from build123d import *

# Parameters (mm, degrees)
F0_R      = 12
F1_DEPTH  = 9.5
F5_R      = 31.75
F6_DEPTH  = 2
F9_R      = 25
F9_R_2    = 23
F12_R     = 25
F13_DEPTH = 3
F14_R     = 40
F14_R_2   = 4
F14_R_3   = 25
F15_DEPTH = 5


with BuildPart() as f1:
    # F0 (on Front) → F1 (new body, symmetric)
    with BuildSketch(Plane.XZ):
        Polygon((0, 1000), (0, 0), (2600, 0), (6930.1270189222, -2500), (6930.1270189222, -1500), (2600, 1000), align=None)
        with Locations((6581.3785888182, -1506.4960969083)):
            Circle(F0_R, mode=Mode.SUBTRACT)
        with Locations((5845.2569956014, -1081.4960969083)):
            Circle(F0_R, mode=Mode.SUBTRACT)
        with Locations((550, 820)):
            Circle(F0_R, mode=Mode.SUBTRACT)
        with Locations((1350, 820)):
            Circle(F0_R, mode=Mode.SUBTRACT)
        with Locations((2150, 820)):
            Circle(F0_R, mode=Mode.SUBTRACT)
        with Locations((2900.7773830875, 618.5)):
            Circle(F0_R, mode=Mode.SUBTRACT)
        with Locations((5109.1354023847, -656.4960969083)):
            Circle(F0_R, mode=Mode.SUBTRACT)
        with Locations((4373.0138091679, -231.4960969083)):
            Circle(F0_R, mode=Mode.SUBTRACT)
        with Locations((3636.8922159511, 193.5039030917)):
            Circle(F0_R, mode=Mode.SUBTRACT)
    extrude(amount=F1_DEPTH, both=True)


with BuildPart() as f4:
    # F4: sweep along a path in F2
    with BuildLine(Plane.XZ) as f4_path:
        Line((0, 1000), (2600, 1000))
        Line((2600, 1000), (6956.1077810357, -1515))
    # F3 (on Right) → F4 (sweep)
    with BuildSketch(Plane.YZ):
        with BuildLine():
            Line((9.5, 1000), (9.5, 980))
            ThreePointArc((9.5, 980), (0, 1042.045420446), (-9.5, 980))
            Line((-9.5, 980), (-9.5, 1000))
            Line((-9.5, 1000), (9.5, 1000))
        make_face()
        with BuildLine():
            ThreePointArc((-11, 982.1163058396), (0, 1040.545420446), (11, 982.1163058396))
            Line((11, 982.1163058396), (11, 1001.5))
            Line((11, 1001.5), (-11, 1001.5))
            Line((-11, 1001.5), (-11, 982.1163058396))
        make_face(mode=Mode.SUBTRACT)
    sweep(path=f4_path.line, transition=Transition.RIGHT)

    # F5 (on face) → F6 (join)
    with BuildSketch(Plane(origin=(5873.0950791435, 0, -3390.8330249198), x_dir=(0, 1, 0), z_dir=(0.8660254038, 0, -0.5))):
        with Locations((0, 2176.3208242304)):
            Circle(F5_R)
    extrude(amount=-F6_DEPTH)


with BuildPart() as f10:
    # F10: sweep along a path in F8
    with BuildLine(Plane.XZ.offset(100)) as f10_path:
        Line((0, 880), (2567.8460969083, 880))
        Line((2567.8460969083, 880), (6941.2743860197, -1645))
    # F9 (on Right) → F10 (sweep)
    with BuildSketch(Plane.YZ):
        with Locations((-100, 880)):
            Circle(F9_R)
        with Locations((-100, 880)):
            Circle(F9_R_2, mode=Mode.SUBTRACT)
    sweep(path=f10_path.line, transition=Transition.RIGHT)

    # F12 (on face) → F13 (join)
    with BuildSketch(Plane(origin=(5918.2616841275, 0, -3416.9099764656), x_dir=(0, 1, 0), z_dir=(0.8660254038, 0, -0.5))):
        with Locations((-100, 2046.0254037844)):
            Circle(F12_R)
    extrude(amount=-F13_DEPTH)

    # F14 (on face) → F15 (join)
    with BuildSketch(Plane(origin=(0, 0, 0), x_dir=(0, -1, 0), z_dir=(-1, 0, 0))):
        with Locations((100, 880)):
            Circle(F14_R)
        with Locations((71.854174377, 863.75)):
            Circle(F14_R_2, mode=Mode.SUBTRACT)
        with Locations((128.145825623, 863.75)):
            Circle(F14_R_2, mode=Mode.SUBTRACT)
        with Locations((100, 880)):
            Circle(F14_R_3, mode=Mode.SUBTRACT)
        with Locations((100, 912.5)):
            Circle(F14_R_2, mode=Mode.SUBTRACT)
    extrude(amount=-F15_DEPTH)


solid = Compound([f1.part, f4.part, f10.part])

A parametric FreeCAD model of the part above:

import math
import FreeCAD as App
import Part
import Sketcher
Q = App.Units.Quantity


def add_polygon(sketch, points):
    """Adds a closed chain of lines whose ends are joined by coincident constraints."""
    first, n = sketch.GeometryCount, len(points)
    for a, b in zip(points, points[1:] + points[:1]):
        sketch.addGeometry(Part.LineSegment(App.Vector(*a, 0), App.Vector(*b, 0)), False)
    for i in range(n):
        sketch.addConstraint(Sketcher.Constraint("Coincident", first + i, 2, first + (i + 1) % n, 1))

doc = App.newDocument("Part")
params = doc.addObject("Spreadsheet::Sheet", "Params")
for row, (alias, value) in enumerate([
    ("sketch1_diameter", "24 mm"),
    ("sketch1_width", "2600 mm"),
    ("sketch1_height", "1000 mm"),
    ("sketch1_length", "5000 mm"),
    ("pad1_length", "19 mm"),
    ("sketch2_width", "19 mm"),
    ("sketch2_width2", "22 mm"),
    ("sketch2_height", "20 mm"),
    ("sketch2_radius", "31.75 mm"),
    ("sketch2_radius2", "30.25 mm"),
    ("sketch3_width", "2600 mm"),
    ("sketch3_length", "5030 mm"),
    ("sketch4_diameter", "63.5 mm"),
    ("pad2_length", "2 mm"),
    ("sketch5_diameter", "50 mm"),
    ("sketch5_diameter2", "46 mm"),
    ("sketch6_length", "5050 mm"),
    ("sketch7_diameter", "50 mm"),
    ("pad3_length", "3 mm"),
    ("sketch8_diameter", "80 mm"),
    ("sketch8_diameter2", "8 mm"),
    ("sketch8_diameter3", "50 mm"),
    ("pad4_length", "5 mm"),
], start=1):
    params.set(f"A{row}", alias)
    params.set(f"B{row}", "=" + value)
    params.setAlias(f"B{row}", alias)

body = doc.addObject("PartDesign::Body", "Body")

# Sketch on XZ plane
sketch1 = body.newObject("Sketcher::SketchObject", "Sketch")
sketch1.AttachmentSupport = (doc.getObject("XZ_Plane"), [""])
sketch1.MapMode = "FlatFace"
add_polygon(sketch1, [(0, 1000), (0, 0), (2600, 0), (6930, -2500), (6930, -1500), (2600, 1000)])  # lines 0-5
sketch1.addGeometry(Part.Circle(App.Vector(6581, -1506, 0), App.Vector(0, 0, 1), 12), False)  # 6
sketch1.addGeometry(Part.Circle(App.Vector(5845, -1081, 0), App.Vector(0, 0, 1), 12), False)  # 7
sketch1.addGeometry(Part.Circle(App.Vector(5109, -656, 0), App.Vector(0, 0, 1), 12), False)  # 8
sketch1.addGeometry(Part.Circle(App.Vector(550, 820, 0), App.Vector(0, 0, 1), 12), False)  # 9
sketch1.addGeometry(Part.Circle(App.Vector(1350, 820, 0), App.Vector(0, 0, 1), 12), False)  # 10
sketch1.addGeometry(Part.Circle(App.Vector(2150, 820, 0), App.Vector(0, 0, 1), 12), False)  # 11
sketch1.addGeometry(Part.Circle(App.Vector(2901, 618, 0), App.Vector(0, 0, 1), 12), False)  # 12
sketch1.addGeometry(Part.Circle(App.Vector(4373, -231, 0), App.Vector(0, 0, 1), 12), False)  # 13
sketch1.addGeometry(Part.Circle(App.Vector(3637, 194, 0), App.Vector(0, 0, 1), 12), False)  # 14
sketch1.addConstraint(Sketcher.Constraint("Vertical", 0))
sketch1.addConstraint(Sketcher.Constraint("Horizontal", 1))
sketch1.addConstraint(Sketcher.Constraint("Vertical", 3))
sketch1.addConstraint(Sketcher.Constraint("Horizontal", 5))
sketch1.addConstraint(Sketcher.Constraint("Coincident", 0, 2, -1, 1))
sketch1.addConstraint(Sketcher.Constraint("Equal", 6, 7))
sketch1.addConstraint(Sketcher.Constraint("Equal", 7, 8))
sketch1.addConstraint(Sketcher.Constraint("Equal", 8, 9))
sketch1.addConstraint(Sketcher.Constraint("Equal", 9, 10))
sketch1.addConstraint(Sketcher.Constraint("Equal", 10, 11))
sketch1.addConstraint(Sketcher.Constraint("Equal", 11, 12))
sketch1.addConstraint(Sketcher.Constraint("Equal", 12, 13))
sketch1.addConstraint(Sketcher.Constraint("Equal", 13, 14))
sketch1.addConstraint(Sketcher.Constraint("Parallel", 2, 4))
sketch1.addConstraint(Sketcher.Constraint("Horizontal", 9, 3, 10, 3))
sketch1.addConstraint(Sketcher.Constraint("Horizontal", 10, 3, 11, 3))
sketch1.addConstraint(Sketcher.Constraint("Vertical", 1, 2, 4, 2))
sketch1.addConstraint(Sketcher.Constraint("Diameter", 6, Q("24 mm")))
sketch1.addConstraint(Sketcher.Constraint("DistanceX", 1, 1, 1, 2, Q("2600 mm")))
sketch1.addConstraint(Sketcher.Constraint("DistanceY", 0, 2, 0, 1, Q("1000 mm")))
sketch1.addConstraint(Sketcher.Constraint("Angle", 2, Q("-30 deg")))
sketch1.addConstraint(Sketcher.Constraint("Distance", 2, Q("5000 mm")))
sketch1.addConstraint(Sketcher.Constraint("DistanceX", -1, 1, 9, 3, Q("550 mm")))
sketch1.addConstraint(Sketcher.Constraint("DistanceY", -1, 1, 9, 3, Q("820 mm")))
sketch1.addConstraint(Sketcher.Constraint("DistanceX", -1, 1, 10, 3, Q("1350 mm")))
sketch1.addConstraint(Sketcher.Constraint("DistanceX", -1, 1, 11, 3, Q("2150 mm")))
sketch1.addConstraint(Sketcher.Constraint("DistanceY", 6, 3, 7, 3, Q("425 mm")))
sketch1.addConstraint(Sketcher.Constraint("DistanceY", 7, 3, 8, 3, Q("425 mm")))
sketch1.addConstraint(Sketcher.Constraint("DistanceY", 8, 3, 13, 3, Q("425 mm")))
sketch1.addConstraint(Sketcher.Constraint("DistanceY", 13, 3, 14, 3, Q("425 mm")))
sketch1.addConstraint(Sketcher.Constraint("DistanceY", -1, 1, 12, 3, Q("618.5 mm")))
sketch1.addConstraint(Sketcher.Constraint("DistanceX", -1, 1, 6, 3, Q("6581.378589 mm")))
sketch1.addConstraint(Sketcher.Constraint("DistanceX", -1, 1, 13, 3, Q("4373.013809 mm")))
sketch1.addConstraint(Sketcher.Constraint("DistanceX", 12, 3, 8, 3, Q("2208.358019 mm")))
sketch1.addConstraint(Sketcher.Constraint("DistanceY", 6, 3, -1, 1, Q("1506.496097 mm")))
sketch1.addConstraint(Sketcher.Constraint("DistanceX", -1, 1, 7, 3, Q("5845.256996 mm")))
sketch1.addConstraint(Sketcher.Constraint("DistanceX", -1, 1, 8, 3, Q("5109.135402 mm")))
sketch1.addConstraint(Sketcher.Constraint("DistanceX", -1, 1, 14, 3, Q("3636.892216 mm")))
sketch1.setExpression("Constraints[23]", "Params.sketch1_diameter")
sketch1.setExpression("Constraints[24]", "Params.sketch1_width")
sketch1.setExpression("Constraints[25]", "Params.sketch1_height")
sketch1.setExpression("Constraints[27]", "Params.sketch1_length")
pad1 = body.newObject("PartDesign::Pad", "Pad")
pad1.Profile = sketch1
pad1.setExpression("Length", "Params.pad1_length")
pad1.Midplane = True
body2 = doc.addObject("PartDesign::Body", "Body001")

# Sketch on YZ plane
sketch2 = body2.newObject("Sketcher::SketchObject", "Sketch001")
sketch2.AttachmentSupport = (doc.getObject("YZ_Plane001"), [""])
sketch2.MapMode = "FlatFace"
sketch2.addGeometry(Part.LineSegment(App.Vector(10, 1000, 0), App.Vector(10, 980, 0)), False)
sketch2.addGeometry(Part.ArcOfCircle(Part.Circle(App.Vector(0, 1010, 0), App.Vector(0, 0, 1), 32), math.radians(-73), math.radians(253)), False)
sketch2.addGeometry(Part.LineSegment(App.Vector(-10, 980, 0), App.Vector(-10, 1000, 0)), False)
sketch2.addGeometry(Part.LineSegment(App.Vector(-10, 1000, 0), App.Vector(10, 1000, 0)), False)
sketch2.addGeometry(Part.LineSegment(App.Vector(-11, 1002, 0), App.Vector(-11, 982, 0)), False)
sketch2.addGeometry(Part.ArcOfCircle(Part.Circle(App.Vector(0, 1010, 0), App.Vector(0, 0, 1), 30), math.radians(-69), math.radians(249)), False)
sketch2.addGeometry(Part.LineSegment(App.Vector(11, 982, 0), App.Vector(11, 1002, 0)), False)
sketch2.addGeometry(Part.LineSegment(App.Vector(11, 1002, 0), App.Vector(-11, 1002, 0)), False)
sketch2.addConstraint(Sketcher.Constraint("Coincident", 0, 2, 1, 1))
sketch2.addConstraint(Sketcher.Constraint("Coincident", 1, 2, 2, 1))
sketch2.addConstraint(Sketcher.Constraint("Coincident", 2, 2, 3, 1))
sketch2.addConstraint(Sketcher.Constraint("Coincident", 3, 2, 0, 1))
sketch2.addConstraint(Sketcher.Constraint("Coincident", 4, 2, 5, 2))
sketch2.addConstraint(Sketcher.Constraint("Coincident", 5, 1, 6, 1))
sketch2.addConstraint(Sketcher.Constraint("Coincident", 6, 2, 7, 1))
sketch2.addConstraint(Sketcher.Constraint("Coincident", 7, 2, 4, 1))
sketch2.addConstraint(Sketcher.Constraint("Vertical", 0))
sketch2.addConstraint(Sketcher.Constraint("Vertical", 2))
sketch2.addConstraint(Sketcher.Constraint("Horizontal", 3))
sketch2.addConstraint(Sketcher.Constraint("Vertical", 4))
sketch2.addConstraint(Sketcher.Constraint("Vertical", 6))
sketch2.addConstraint(Sketcher.Constraint("Horizontal", 7))
sketch2.addConstraint(Sketcher.Constraint("Coincident", 5, 3, 1, 3))
sketch2.addConstraint(Sketcher.Constraint("Symmetric", 0, 2, 1, 2, -2))
sketch2.addConstraint(Sketcher.Constraint("Horizontal", 4, 2, 5, 1))
sketch2.addConstraint(Sketcher.Constraint("DistanceX", 3, 1, 3, 2, Q("19 mm")))
sketch2.addConstraint(Sketcher.Constraint("DistanceX", 7, 2, 7, 1, Q("22 mm")))
sketch2.addConstraint(Sketcher.Constraint("DistanceY", 0, 2, 0, 1, Q("20 mm")))
sketch2.addConstraint(Sketcher.Constraint("Radius", 1, Q("31.75 mm")))
sketch2.addConstraint(Sketcher.Constraint("Radius", 5, Q("30.25 mm")))
sketch2.addConstraint(Sketcher.Constraint("DistanceY", -1, 1, 0, 2, Q("980 mm")))
sketch2.addConstraint(Sketcher.Constraint("DistanceY", -1, 1, 6, 2, Q("1001.5 mm")))
sketch2.setExpression("Constraints[17]", "Params.sketch2_width")
sketch2.setExpression("Constraints[18]", "Params.sketch2_width2")
sketch2.setExpression("Constraints[19]", "Params.sketch2_height")
sketch2.setExpression("Constraints[20]", "Params.sketch2_radius")
sketch2.setExpression("Constraints[21]", "Params.sketch2_radius2")

# Sketch on XZ plane
sketch3 = body2.newObject("Sketcher::SketchObject", "Sketch002")
sketch3.AttachmentSupport = (doc.getObject("XZ_Plane001"), [""])
sketch3.MapMode = "FlatFace"
sketch3.addGeometry(Part.LineSegment(App.Vector(0, 1000, 0), App.Vector(2600, 1000, 0)), False)
sketch3.addGeometry(Part.LineSegment(App.Vector(2600, 1000, 0), App.Vector(6956, -1515, 0)), False)
sketch3.addConstraint(Sketcher.Constraint("Coincident", 0, 2, 1, 1))
sketch3.addConstraint(Sketcher.Constraint("Horizontal", 0))
sketch3.addConstraint(Sketcher.Constraint("PointOnObject", 0, 1, -2))
sketch3.addConstraint(Sketcher.Constraint("DistanceX", 0, 1, 0, 2, Q("2600 mm")))
sketch3.addConstraint(Sketcher.Constraint("Angle", 1, Q("-30 deg")))
sketch3.addConstraint(Sketcher.Constraint("Distance", 1, Q("5030 mm")))
sketch3.addConstraint(Sketcher.Constraint("DistanceY", -1, 1, 0, 1, Q("1000 mm")))
sketch3.setExpression("Constraints[3]", "Params.sketch3_width")
sketch3.setExpression("Constraints[5]", "Params.sketch3_length")
doc.recompute()

additivepipe = body2.newObject("PartDesign::AdditivePipe", "AdditivePipe")
additivepipe.Profile = sketch2
additivepipe.Spine = (sketch3, ["Edge1", "Edge2"])
additivepipe.Transition = "Right corner"

# Sketch on an angled plane
sketch4 = body2.newObject("Sketcher::SketchObject", "Sketch003")
sketch4.Placement = App.Placement(App.Vector(5873.095079, 0, -3390.833025), App.Rotation(App.Vector(0, 1, 0), App.Vector(0.5, 0, 0.866025404), App.Vector(0.866025404, 0, -0.5), "ZXY"))
sketch4.addGeometry(Part.Circle(App.Vector(0, 2176, 0), App.Vector(0, 0, 1), 32), False)
sketch4.addConstraint(Sketcher.Constraint("PointOnObject", 0, 3, -2))
sketch4.addConstraint(Sketcher.Constraint("Diameter", 0, Q("63.5 mm")))
sketch4.addConstraint(Sketcher.Constraint("DistanceY", -1, 1, 0, 3, Q("2176.320825 mm")))
sketch4.setExpression("Constraints[1]", "Params.sketch4_diameter")
pad2 = body2.newObject("PartDesign::Pad", "Pad001")
pad2.Profile = sketch4
pad2.setExpression("Length", "Params.pad2_length")
pad2.Reversed = True
body3 = doc.addObject("PartDesign::Body", "Body002")

# Sketch on YZ plane
sketch5 = body3.newObject("Sketcher::SketchObject", "Sketch004")
sketch5.AttachmentSupport = (doc.getObject("YZ_Plane002"), [""])
sketch5.MapMode = "FlatFace"
sketch5.addGeometry(Part.Circle(App.Vector(-100, 880, 0), App.Vector(0, 0, 1), 25), False)
sketch5.addGeometry(Part.Circle(App.Vector(-100, 880, 0), App.Vector(0, 0, 1), 23), False)
sketch5.addConstraint(Sketcher.Constraint("Coincident", 1, 3, 0, 3))
sketch5.addConstraint(Sketcher.Constraint("Diameter", 0, Q("50 mm")))
sketch5.addConstraint(Sketcher.Constraint("Diameter", 1, Q("46 mm")))
sketch5.addConstraint(Sketcher.Constraint("DistanceX", 0, 3, -1, 1, Q("100 mm")))
sketch5.addConstraint(Sketcher.Constraint("DistanceY", -1, 1, 0, 3, Q("880 mm")))
sketch5.setExpression("Constraints[1]", "Params.sketch5_diameter")
sketch5.setExpression("Constraints[2]", "Params.sketch5_diameter2")

# Sketch on XZ plane
sketch6 = body3.newObject("Sketcher::SketchObject", "Sketch005")
sketch6.AttachmentSupport = (doc.getObject("XZ_Plane002"), [""])
sketch6.MapMode = "FlatFace"
sketch6.AttachmentOffset = App.Placement(App.Vector(0, 0, 100), App.Rotation())
sketch6.addGeometry(Part.LineSegment(App.Vector(0, 880, 0), App.Vector(2568, 880, 0)), False)
sketch6.addGeometry(Part.LineSegment(App.Vector(2568, 880, 0), App.Vector(6941, -1645, 0)), False)
sketch6.addConstraint(Sketcher.Constraint("Coincident", 0, 2, 1, 1))
sketch6.addConstraint(Sketcher.Constraint("Horizontal", 0))
sketch6.addConstraint(Sketcher.Constraint("PointOnObject", 0, 1, -2))
sketch6.addConstraint(Sketcher.Constraint("Angle", 1, Q("-30 deg")))
sketch6.addConstraint(Sketcher.Constraint("Distance", 1, Q("5050 mm")))
sketch6.addConstraint(Sketcher.Constraint("DistanceY", -1, 1, 0, 1, Q("880 mm")))
sketch6.addConstraint(Sketcher.Constraint("DistanceX", 0, 1, 0, 2, Q("2567.846097 mm")))
sketch6.setExpression("Constraints[4]", "Params.sketch6_length")
doc.recompute()

additivepipe2 = body3.newObject("PartDesign::AdditivePipe", "AdditivePipe001")
additivepipe2.Profile = sketch5
additivepipe2.Spine = (sketch6, ["Edge1", "Edge2"])
additivepipe2.Transition = "Right corner"

# Sketch on an angled plane
sketch7 = body3.newObject("Sketcher::SketchObject", "Sketch006")
sketch7.Placement = App.Placement(App.Vector(5918.261684, 0, -3416.909976), App.Rotation(App.Vector(0, 1, 0), App.Vector(0.5, 0, 0.866025404), App.Vector(0.866025404, 0, -0.5), "ZXY"))
sketch7.addGeometry(Part.Circle(App.Vector(-100, 2046, 0), App.Vector(0, 0, 1), 25), False)
sketch7.addConstraint(Sketcher.Constraint("Diameter", 0, Q("50 mm")))
sketch7.addConstraint(Sketcher.Constraint("DistanceX", 0, 3, -1, 1, Q("100 mm")))
sketch7.addConstraint(Sketcher.Constraint("DistanceY", -1, 1, 0, 3, Q("2046.025405 mm")))
sketch7.setExpression("Constraints[0]", "Params.sketch7_diameter")
pad3 = body3.newObject("PartDesign::Pad", "Pad002")
pad3.Profile = sketch7
pad3.setExpression("Length", "Params.pad3_length")
pad3.Reversed = True

# Sketch on YZ plane
sketch8 = body3.newObject("Sketcher::SketchObject", "Sketch007")
sketch8.AttachmentSupport = (doc.getObject("YZ_Plane002"), [""])
sketch8.MapMode = "FlatFace"
sketch8.addGeometry(Part.Circle(App.Vector(-100, 880, 0), App.Vector(0, 0, 1), 40), False)
sketch8.addGeometry(Part.Circle(App.Vector(-71.9, 863.8, 0), App.Vector(0, 0, 1), 4), False)
sketch8.addGeometry(Part.Circle(App.Vector(-100, 880, 0), App.Vector(0, 0, 1), 25), False)
sketch8.addGeometry(Part.Circle(App.Vector(-128.1, 863.8, 0), App.Vector(0, 0, 1), 4), False)
sketch8.addGeometry(Part.Circle(App.Vector(-100, 912.5, 0), App.Vector(0, 0, 1), 4), False)
sketch8.addConstraint(Sketcher.Constraint("Coincident", 2, 3, 0, 3))
sketch8.addConstraint(Sketcher.Constraint("Equal", 1, 3))
sketch8.addConstraint(Sketcher.Constraint("Equal", 3, 4))
sketch8.addConstraint(Sketcher.Constraint("Horizontal", 1, 3, 3, 3))
sketch8.addConstraint(Sketcher.Constraint("Vertical", 2, 3, 4, 3))
sketch8.addConstraint(Sketcher.Constraint("Diameter", 0, Q("80 mm")))
sketch8.addConstraint(Sketcher.Constraint("Diameter", 1, Q("8 mm")))
sketch8.addConstraint(Sketcher.Constraint("Diameter", 2, Q("50 mm")))
sketch8.addConstraint(Sketcher.Constraint("DistanceX", 0, 3, -1, 1, Q("100 mm")))
sketch8.addConstraint(Sketcher.Constraint("DistanceY", -1, 1, 0, 3, Q("880 mm")))
sketch8.addConstraint(Sketcher.Constraint("DistanceY", -1, 1, 4, 3, Q("912.5 mm")))
sketch8.addConstraint(Sketcher.Constraint("DistanceY", -1, 1, 1, 3, Q("863.75 mm")))
sketch8.addConstraint(Sketcher.Constraint("DistanceX", 3, 3, 1, 3, Q("56.291651 mm")))
sketch8.addConstraint(Sketcher.Constraint("DistanceX", 1, 3, -1, 1, Q("71.854174 mm")))
sketch8.setExpression("Constraints[5]", "Params.sketch8_diameter")
sketch8.setExpression("Constraints[6]", "Params.sketch8_diameter2")
sketch8.setExpression("Constraints[7]", "Params.sketch8_diameter3")
pad4 = body3.newObject("PartDesign::Pad", "Pad003")
pad4.Profile = sketch8
pad4.setExpression("Length", "Params.pad4_length")

doc.recompute()
